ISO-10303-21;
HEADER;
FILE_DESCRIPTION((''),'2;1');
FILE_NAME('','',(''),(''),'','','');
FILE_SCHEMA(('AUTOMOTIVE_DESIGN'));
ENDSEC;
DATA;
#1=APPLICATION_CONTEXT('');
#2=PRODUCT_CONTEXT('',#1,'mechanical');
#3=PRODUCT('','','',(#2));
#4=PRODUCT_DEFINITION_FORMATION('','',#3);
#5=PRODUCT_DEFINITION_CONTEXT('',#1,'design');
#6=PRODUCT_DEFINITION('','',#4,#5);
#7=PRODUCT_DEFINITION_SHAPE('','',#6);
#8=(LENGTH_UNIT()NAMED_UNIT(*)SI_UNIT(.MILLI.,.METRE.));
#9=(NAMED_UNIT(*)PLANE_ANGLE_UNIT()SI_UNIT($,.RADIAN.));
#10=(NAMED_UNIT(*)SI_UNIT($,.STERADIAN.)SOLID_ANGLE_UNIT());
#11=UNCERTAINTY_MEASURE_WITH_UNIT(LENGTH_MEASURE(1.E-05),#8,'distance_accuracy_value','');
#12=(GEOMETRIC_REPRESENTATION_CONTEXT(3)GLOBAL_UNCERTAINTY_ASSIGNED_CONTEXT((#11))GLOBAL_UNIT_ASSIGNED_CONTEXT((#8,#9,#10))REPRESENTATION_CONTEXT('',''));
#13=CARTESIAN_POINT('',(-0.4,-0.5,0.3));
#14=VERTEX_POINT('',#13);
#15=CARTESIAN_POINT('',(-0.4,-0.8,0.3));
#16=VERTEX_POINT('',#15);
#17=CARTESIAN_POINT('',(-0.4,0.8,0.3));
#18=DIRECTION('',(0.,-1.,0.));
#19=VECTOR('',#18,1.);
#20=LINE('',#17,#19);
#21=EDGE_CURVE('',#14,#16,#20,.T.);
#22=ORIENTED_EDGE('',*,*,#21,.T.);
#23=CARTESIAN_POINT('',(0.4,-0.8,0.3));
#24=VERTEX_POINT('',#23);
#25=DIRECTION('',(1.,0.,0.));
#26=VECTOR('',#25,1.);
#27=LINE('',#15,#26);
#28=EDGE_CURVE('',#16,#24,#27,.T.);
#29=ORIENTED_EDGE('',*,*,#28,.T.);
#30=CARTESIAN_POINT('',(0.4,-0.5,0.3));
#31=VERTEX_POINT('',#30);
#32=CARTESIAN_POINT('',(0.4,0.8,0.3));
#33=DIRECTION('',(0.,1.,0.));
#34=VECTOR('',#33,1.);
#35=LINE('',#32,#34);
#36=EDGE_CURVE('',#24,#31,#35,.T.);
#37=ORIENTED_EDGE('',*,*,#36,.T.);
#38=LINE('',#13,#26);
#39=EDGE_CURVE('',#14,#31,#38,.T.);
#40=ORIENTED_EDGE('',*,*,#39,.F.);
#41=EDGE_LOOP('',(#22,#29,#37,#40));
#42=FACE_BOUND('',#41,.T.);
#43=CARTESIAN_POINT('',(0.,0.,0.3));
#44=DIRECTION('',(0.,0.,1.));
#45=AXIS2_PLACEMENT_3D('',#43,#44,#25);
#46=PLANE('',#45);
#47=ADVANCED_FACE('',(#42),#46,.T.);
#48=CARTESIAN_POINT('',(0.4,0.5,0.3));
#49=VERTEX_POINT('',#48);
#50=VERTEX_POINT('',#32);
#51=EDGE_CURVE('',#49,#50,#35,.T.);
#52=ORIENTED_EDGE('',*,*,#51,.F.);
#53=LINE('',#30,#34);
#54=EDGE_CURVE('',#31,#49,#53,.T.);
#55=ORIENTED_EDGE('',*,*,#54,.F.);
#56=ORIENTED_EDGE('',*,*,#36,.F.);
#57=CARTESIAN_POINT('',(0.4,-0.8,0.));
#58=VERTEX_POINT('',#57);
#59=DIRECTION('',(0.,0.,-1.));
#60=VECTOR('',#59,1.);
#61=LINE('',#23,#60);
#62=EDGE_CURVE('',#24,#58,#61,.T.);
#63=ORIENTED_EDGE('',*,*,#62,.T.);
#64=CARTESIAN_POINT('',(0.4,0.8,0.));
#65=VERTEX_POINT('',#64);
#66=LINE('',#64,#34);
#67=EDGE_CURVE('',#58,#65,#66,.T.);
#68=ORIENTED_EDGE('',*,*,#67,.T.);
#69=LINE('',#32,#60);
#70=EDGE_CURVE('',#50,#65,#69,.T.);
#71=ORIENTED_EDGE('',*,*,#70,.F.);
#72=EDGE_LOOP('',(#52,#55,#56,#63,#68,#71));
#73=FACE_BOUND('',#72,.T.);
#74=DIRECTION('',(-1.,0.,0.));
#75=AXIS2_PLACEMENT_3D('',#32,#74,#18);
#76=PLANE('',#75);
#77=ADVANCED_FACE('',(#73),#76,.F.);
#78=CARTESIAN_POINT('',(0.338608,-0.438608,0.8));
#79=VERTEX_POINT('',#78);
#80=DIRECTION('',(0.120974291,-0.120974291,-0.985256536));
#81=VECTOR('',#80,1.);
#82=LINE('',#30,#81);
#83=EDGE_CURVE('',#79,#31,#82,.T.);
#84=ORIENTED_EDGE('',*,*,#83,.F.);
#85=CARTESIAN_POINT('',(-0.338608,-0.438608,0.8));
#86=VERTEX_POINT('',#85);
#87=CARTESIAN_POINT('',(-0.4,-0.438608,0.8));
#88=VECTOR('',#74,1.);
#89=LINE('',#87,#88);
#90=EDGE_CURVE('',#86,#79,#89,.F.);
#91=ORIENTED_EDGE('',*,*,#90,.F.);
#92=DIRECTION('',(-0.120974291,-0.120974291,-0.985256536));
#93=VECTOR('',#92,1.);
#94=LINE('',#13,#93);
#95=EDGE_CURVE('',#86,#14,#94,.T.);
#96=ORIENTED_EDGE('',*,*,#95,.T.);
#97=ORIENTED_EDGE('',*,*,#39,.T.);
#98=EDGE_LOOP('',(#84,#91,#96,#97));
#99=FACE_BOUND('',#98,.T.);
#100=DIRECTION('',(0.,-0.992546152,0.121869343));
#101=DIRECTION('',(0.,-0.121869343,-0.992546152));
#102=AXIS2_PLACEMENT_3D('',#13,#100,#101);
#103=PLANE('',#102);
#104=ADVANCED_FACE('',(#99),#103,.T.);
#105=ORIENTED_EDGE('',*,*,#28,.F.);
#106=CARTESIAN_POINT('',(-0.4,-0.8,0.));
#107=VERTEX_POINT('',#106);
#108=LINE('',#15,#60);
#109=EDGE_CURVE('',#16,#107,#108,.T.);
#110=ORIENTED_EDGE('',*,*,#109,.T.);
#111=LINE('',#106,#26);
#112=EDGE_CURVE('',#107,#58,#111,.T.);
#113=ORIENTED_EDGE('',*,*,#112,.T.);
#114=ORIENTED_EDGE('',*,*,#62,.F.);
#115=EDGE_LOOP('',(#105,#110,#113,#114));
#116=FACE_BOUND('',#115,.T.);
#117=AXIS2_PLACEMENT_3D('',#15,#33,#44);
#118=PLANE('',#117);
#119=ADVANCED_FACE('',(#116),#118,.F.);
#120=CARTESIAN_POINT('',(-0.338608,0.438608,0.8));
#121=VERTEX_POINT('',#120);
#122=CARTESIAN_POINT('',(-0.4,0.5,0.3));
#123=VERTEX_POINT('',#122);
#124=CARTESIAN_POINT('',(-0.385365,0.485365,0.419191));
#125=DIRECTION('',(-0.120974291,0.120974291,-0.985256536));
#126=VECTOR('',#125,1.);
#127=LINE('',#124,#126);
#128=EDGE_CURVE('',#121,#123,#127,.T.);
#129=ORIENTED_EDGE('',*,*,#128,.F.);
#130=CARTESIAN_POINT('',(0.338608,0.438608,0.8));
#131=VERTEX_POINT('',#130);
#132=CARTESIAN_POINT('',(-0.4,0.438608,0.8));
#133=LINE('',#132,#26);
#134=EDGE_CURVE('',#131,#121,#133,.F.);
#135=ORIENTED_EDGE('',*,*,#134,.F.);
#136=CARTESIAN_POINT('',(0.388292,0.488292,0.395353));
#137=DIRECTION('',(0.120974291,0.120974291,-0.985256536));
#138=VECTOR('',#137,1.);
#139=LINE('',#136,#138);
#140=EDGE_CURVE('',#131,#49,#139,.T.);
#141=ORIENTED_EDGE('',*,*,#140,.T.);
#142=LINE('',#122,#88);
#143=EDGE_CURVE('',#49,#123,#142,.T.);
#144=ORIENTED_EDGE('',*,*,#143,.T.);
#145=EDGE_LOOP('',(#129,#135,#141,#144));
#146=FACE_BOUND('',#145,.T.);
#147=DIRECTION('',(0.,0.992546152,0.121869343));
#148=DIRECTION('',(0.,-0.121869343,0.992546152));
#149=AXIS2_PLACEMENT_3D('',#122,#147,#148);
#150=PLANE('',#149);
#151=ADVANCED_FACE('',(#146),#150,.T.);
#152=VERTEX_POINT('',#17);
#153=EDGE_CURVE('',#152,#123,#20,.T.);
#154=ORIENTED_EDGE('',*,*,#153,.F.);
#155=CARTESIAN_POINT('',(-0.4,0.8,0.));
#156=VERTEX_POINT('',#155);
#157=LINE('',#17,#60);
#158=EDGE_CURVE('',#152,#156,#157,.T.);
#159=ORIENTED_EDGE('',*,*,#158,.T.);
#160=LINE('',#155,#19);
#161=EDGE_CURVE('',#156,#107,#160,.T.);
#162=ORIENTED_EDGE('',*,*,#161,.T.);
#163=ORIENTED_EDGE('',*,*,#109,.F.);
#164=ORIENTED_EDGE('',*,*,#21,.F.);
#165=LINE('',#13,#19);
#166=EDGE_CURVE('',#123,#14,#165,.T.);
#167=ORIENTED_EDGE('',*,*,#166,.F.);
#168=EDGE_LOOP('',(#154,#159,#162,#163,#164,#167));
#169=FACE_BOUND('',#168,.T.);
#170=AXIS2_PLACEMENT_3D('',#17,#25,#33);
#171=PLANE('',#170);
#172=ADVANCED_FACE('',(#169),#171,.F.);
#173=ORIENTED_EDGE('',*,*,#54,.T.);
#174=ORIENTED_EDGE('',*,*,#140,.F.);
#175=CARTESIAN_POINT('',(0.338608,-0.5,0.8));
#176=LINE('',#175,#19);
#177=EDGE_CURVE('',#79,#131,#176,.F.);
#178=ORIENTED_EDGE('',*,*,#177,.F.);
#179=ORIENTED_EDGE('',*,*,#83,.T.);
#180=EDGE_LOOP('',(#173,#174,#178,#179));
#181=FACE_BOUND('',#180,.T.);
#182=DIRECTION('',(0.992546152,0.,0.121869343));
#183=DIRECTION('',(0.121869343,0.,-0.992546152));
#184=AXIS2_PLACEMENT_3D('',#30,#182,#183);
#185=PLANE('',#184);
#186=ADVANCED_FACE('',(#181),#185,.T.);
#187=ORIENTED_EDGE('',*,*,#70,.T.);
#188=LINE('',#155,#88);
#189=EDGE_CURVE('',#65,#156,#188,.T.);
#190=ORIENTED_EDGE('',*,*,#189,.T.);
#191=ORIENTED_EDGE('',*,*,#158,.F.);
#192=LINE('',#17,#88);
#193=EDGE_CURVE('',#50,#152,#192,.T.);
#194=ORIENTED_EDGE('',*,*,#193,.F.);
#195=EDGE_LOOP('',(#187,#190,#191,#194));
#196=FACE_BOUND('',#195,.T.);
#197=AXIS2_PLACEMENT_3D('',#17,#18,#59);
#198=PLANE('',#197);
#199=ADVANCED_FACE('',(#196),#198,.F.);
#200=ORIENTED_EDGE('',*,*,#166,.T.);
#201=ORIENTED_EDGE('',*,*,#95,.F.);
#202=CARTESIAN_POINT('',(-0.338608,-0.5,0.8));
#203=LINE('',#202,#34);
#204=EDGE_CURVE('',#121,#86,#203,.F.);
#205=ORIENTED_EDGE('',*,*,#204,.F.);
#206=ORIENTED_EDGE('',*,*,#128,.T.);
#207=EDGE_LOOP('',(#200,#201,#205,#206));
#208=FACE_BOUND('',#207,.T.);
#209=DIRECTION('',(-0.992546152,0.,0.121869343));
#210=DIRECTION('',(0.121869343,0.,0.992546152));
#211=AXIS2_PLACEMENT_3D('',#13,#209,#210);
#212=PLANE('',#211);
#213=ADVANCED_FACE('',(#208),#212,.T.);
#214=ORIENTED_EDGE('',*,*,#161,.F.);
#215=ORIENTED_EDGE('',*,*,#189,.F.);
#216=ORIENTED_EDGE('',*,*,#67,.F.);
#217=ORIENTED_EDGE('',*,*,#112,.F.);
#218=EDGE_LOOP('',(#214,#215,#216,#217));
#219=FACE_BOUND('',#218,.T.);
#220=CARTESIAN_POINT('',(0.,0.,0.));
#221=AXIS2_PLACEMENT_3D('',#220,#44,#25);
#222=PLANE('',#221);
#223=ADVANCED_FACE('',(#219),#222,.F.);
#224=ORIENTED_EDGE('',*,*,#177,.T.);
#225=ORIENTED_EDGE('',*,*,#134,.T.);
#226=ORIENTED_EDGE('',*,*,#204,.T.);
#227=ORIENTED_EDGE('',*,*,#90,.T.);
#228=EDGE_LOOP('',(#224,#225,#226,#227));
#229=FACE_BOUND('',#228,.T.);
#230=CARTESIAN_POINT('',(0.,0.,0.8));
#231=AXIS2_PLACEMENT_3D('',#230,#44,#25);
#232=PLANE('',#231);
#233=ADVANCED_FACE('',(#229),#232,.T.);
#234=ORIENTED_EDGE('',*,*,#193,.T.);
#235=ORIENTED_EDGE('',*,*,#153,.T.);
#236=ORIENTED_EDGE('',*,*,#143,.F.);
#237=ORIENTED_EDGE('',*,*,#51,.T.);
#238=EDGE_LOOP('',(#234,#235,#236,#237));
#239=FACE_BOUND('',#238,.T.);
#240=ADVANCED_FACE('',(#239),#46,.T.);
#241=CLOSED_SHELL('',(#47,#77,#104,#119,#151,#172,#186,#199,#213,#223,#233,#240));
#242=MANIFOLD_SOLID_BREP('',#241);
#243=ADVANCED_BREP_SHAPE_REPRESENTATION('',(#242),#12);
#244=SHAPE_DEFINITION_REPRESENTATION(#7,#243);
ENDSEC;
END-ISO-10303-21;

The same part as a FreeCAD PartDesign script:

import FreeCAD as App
import Part
import Sketcher

V = App.Vector

doc = App.newDocument("Part")
body = doc.addObject("PartDesign::Body", "Body")

sketch1 = doc.addObject("Sketcher::SketchObject", "Sketch")
body.addObject(sketch1)
sketch1.AttachmentSupport = (doc.XY_Plane, [""])
sketch1.MapMode = "FlatFace"
sketch1.addGeometry(Part.LineSegment(V(-0.4, 0.8, 0), V(-0.4, -0.8, 0)), False)
sketch1.addGeometry(Part.LineSegment(V(-0.4, -0.8, 0), V(0.4, -0.8, 0)), False)
sketch1.addGeometry(Part.LineSegment(V(0.4, -0.8, 0), V(0.4, 0.8, 0)), False)
sketch1.addGeometry(Part.LineSegment(V(0.4, 0.8, 0), V(-0.4, 0.8, 0)), False)
sketch1.addConstraint(Sketcher.Constraint("Coincident", 0, 2, 1, 1))
sketch1.addConstraint(Sketcher.Constraint("Coincident", 1, 2, 2, 1))
sketch1.addConstraint(Sketcher.Constraint("Coincident", 2, 2, 3, 1))
sketch1.addConstraint(Sketcher.Constraint("Coincident", 3, 2, 0, 1))
sketch1.addConstraint(Sketcher.Constraint("Vertical", 0))
sketch1.addConstraint(Sketcher.Constraint("Horizontal", 1))
sketch1.addConstraint(Sketcher.Constraint("Vertical", 2))
sketch1.addConstraint(Sketcher.Constraint("Horizontal", 3))
sketch1.addConstraint(Sketcher.Constraint("Symmetric", 0, 2, 2, 2, -1, 1))
sketch1.addConstraint(Sketcher.Constraint("DistanceX", 1, 1, 1, 2, 0.8))
sketch1.addConstraint(Sketcher.Constraint("DistanceY", 0, 2, 0, 1, 1.6))
pad1 = doc.addObject("PartDesign::Pad", "Pad")
body.addObject(pad1)
pad1.Profile = sketch1
pad1.Length = 0.3

sketch2 = doc.addObject("Sketcher::SketchObject", "Sketch001")
body.addObject(sketch2)
sketch2.AttachmentSupport = (doc.XY_Plane, [""])
sketch2.MapMode = "FlatFace"
sketch2.AttachmentOffset = App.Placement(V(0, 0, 0.3), App.Rotation())
sketch2.addGeometry(Part.LineSegment(V(-0.4, 0.5, 0), V(-0.4, -0.5, 0)), False)
sketch2.addGeometry(Part.LineSegment(V(-0.4, -0.5, 0), V(0.4, -0.5, 0)), False)
sketch2.addGeometry(Part.LineSegment(V(0.4, -0.5, 0), V(0.4, 0.5, 0)), False)
sketch2.addGeometry(Part.LineSegment(V(0.4, 0.5, 0), V(-0.4, 0.5, 0)), False)
sketch2.addConstraint(Sketcher.Constraint("Coincident", 0, 2, 1, 1))
sketch2.addConstraint(Sketcher.Constraint("Coincident", 1, 2, 2, 1))
sketch2.addConstraint(Sketcher.Constraint("Coincident", 2, 2, 3, 1))
sketch2.addConstraint(Sketcher.Constraint("Coincident", 3, 2, 0, 1))
sketch2.addConstraint(Sketcher.Constraint("Vertical", 0))
sketch2.addConstraint(Sketcher.Constraint("Horizontal", 1))
sketch2.addConstraint(Sketcher.Constraint("Vertical", 2))
sketch2.addConstraint(Sketcher.Constraint("Horizontal", 3))
sketch2.addConstraint(Sketcher.Constraint("Symmetric", 0, 2, 2, 2, -1, 1))
sketch2.addConstraint(Sketcher.Constraint("DistanceY", 0, 2, 0, 1, 1.0))
sketch2.addConstraint(Sketcher.Constraint("DistanceX", 1, 1, 1, 2, 0.8))
pad2 = doc.addObject("PartDesign::Pad", "Pad001")
body.addObject(pad2)
pad2.Profile = sketch2
pad2.Length = 0.5
pad2.TaperAngle = -7

doc.recompute()
